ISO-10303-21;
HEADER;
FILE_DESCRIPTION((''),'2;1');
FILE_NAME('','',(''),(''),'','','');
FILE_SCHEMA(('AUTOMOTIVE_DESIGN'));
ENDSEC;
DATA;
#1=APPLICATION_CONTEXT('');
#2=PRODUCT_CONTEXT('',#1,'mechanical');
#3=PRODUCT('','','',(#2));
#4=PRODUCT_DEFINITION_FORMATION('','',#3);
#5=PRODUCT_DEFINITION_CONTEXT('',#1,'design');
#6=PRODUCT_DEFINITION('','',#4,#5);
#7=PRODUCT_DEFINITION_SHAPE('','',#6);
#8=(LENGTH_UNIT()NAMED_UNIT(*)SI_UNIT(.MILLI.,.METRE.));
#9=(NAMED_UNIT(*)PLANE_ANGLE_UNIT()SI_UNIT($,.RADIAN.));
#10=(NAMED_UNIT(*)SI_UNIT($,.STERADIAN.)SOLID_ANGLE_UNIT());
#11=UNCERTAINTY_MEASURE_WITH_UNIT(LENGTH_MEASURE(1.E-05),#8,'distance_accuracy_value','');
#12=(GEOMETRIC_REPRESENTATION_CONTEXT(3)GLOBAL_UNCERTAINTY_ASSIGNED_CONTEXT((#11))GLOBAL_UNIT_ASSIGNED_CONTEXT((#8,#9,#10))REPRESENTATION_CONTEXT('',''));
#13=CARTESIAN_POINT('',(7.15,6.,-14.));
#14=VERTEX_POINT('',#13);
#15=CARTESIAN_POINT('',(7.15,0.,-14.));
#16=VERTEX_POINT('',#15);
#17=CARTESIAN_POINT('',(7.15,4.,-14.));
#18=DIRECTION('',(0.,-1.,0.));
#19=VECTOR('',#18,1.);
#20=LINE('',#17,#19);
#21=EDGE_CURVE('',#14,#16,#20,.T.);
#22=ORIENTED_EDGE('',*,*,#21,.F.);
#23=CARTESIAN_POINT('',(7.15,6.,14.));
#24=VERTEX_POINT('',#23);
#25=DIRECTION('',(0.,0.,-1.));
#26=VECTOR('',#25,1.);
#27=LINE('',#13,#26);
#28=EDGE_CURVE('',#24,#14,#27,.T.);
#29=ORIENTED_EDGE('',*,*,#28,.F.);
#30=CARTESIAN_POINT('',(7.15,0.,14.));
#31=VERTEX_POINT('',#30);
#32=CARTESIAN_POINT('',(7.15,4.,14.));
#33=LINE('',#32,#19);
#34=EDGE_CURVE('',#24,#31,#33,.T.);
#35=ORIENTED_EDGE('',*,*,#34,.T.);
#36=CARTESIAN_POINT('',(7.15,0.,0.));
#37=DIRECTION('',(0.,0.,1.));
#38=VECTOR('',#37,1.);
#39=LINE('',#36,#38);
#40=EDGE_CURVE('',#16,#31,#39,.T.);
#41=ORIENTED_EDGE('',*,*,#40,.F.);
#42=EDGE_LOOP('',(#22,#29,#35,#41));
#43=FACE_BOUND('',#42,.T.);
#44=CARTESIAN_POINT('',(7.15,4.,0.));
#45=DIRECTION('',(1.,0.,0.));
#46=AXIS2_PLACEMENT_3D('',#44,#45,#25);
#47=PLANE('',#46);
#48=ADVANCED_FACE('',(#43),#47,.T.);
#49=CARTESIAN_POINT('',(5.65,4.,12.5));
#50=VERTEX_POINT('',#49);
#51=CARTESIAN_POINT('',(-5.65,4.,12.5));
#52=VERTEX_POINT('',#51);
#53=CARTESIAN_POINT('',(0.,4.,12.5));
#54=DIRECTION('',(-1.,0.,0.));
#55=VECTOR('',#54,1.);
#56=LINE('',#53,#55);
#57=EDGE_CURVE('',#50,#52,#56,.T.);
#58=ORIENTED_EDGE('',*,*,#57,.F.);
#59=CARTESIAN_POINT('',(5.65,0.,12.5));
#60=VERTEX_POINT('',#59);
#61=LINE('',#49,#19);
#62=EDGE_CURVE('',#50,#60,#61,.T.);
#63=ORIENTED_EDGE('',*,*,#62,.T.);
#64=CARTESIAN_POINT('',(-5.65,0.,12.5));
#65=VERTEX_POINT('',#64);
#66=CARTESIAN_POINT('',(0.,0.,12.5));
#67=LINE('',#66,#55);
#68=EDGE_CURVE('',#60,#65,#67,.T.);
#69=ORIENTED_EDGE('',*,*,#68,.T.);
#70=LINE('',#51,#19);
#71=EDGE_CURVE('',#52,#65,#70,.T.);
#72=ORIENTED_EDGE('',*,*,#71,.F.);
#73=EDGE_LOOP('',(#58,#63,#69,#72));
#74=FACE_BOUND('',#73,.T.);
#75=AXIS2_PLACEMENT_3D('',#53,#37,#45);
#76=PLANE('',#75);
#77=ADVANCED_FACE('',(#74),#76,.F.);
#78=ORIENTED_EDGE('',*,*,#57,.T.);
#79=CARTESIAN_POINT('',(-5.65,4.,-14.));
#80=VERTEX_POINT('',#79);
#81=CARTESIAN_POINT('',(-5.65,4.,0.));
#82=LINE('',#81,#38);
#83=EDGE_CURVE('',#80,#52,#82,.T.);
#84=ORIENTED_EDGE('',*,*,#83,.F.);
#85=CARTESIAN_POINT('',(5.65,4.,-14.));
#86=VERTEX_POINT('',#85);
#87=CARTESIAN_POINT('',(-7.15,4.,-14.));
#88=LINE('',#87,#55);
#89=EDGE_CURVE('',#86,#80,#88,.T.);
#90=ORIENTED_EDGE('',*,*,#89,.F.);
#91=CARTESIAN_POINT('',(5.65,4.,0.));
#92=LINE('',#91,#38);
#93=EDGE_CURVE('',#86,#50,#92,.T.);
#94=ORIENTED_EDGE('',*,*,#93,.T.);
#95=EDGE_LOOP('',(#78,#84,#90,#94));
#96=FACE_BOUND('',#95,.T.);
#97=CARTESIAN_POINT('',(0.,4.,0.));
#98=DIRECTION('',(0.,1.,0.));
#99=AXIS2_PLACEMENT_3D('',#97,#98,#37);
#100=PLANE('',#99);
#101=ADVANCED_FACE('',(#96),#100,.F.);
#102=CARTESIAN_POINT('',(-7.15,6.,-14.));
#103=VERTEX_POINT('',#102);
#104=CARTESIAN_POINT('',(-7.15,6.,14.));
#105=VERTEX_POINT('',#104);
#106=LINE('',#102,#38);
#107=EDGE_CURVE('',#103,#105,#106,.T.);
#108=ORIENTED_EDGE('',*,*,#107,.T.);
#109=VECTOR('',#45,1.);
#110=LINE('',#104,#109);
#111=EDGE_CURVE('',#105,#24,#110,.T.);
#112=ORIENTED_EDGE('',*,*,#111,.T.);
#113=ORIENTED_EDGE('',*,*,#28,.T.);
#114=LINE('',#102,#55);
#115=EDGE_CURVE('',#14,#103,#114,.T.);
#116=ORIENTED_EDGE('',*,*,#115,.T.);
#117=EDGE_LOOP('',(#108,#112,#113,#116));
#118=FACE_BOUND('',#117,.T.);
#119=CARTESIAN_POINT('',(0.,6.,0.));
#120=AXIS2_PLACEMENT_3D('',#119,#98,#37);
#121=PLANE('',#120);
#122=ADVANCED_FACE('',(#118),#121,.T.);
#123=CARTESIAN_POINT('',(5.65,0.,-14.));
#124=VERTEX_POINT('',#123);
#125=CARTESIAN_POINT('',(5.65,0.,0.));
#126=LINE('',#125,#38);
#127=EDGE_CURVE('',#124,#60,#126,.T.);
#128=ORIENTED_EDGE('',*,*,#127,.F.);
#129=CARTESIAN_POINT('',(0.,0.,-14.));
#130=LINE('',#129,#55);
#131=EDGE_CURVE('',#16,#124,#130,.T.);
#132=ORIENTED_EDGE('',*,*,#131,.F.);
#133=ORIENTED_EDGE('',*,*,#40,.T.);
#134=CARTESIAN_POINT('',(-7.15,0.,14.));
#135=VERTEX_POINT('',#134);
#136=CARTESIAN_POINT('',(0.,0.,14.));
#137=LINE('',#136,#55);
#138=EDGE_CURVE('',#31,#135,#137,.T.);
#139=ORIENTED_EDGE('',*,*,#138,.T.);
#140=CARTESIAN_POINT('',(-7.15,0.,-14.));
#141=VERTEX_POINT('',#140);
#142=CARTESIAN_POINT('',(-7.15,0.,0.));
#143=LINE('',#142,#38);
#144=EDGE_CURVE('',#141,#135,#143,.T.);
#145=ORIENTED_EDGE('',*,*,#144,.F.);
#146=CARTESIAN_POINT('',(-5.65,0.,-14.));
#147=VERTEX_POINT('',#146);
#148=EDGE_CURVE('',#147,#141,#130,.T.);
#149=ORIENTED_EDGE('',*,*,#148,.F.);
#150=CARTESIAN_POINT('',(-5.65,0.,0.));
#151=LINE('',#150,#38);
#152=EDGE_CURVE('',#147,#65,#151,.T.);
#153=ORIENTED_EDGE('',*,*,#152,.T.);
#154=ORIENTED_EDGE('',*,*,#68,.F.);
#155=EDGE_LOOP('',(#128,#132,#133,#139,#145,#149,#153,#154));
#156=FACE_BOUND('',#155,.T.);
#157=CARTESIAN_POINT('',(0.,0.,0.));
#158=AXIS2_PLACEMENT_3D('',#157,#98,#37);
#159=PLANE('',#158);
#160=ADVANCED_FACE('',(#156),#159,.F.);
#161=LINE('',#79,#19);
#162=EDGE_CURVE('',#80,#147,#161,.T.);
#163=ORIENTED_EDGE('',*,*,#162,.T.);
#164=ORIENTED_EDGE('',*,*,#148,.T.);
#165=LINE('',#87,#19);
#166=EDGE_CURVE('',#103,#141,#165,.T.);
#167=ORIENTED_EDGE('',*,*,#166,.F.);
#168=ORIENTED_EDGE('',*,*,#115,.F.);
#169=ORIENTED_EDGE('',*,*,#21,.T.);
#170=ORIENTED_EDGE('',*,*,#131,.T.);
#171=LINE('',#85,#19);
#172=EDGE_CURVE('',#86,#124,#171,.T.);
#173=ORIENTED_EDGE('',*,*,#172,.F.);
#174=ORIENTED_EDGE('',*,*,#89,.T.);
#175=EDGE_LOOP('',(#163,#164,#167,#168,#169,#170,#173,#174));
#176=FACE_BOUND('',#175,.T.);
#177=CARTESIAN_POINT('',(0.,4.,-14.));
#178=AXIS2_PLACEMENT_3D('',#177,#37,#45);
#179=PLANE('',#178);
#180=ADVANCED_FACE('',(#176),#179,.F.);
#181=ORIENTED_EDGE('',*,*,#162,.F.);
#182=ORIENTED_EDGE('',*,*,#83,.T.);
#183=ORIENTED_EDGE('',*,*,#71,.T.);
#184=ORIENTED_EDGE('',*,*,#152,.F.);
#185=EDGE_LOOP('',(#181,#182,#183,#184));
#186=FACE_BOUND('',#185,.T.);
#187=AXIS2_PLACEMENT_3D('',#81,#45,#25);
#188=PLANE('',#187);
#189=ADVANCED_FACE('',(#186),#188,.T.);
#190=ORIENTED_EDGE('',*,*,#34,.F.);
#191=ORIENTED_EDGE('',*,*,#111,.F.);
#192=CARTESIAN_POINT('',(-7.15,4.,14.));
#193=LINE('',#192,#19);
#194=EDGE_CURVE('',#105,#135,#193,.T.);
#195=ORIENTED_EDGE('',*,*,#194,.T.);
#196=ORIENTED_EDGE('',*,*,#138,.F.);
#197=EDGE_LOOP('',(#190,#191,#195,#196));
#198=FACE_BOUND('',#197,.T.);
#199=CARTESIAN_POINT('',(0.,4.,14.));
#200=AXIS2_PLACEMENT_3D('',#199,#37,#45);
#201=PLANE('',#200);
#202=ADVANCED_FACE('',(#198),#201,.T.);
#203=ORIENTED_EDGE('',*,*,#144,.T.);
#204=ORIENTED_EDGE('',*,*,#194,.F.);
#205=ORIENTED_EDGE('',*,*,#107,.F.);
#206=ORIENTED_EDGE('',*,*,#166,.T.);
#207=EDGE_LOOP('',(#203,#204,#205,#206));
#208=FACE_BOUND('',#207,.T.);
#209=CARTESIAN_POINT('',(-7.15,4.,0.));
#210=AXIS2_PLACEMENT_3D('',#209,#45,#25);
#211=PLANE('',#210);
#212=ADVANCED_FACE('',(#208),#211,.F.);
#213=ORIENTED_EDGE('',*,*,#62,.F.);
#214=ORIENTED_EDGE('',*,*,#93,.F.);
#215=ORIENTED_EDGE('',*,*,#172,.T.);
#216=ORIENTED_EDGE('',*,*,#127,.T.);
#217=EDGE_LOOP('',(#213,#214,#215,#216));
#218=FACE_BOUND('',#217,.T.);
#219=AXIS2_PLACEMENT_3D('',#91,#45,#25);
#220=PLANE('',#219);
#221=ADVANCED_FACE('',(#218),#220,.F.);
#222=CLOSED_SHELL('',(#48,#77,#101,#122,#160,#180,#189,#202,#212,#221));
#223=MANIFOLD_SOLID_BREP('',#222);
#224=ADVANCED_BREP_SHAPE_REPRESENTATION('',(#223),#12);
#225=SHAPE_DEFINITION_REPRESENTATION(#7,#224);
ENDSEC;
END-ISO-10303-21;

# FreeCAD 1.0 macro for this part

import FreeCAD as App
import Part
import Sketcher
from FreeCAD import Vector

doc = App.newDocument("Part")
body = doc.addObject("PartDesign::Body", "Body")

sketch1 = body.newObject("Sketcher::SketchObject", "Sketch")
sketch1.AttachmentSupport = (doc.getObject("XZ_Plane"), [""])
sketch1.MapMode = "FlatFace"
sketch1.addGeometry([
    Part.LineSegment(Vector(-5.65, 12.5, 0), Vector(-5.65, -14, 0)),
    Part.LineSegment(Vector(-5.65, -14, 0), Vector(-7.15, -14, 0)),
    Part.LineSegment(Vector(-7.15, -14, 0), Vector(-7.15, 14, 0)),
    Part.LineSegment(Vector(-7.15, 14, 0), Vector(7.15, 14, 0)),
    Part.LineSegment(Vector(7.15, 14, 0), Vector(7.15, -14, 0)),
    Part.LineSegment(Vector(7.15, -14, 0), Vector(5.65, -14, 0)),
    Part.LineSegment(Vector(5.65, -14, 0), Vector(5.65, 12.5, 0)),
    Part.LineSegment(Vector(5.65, 12.5, 0), Vector(-5.65, 12.5, 0)),
], False)
sketch1.addConstraint([
    Sketcher.Constraint("Coincident", 0, 2, 1, 1),
    Sketcher.Constraint("Coincident", 1, 2, 2, 1),
    Sketcher.Constraint("Coincident", 2, 2, 3, 1),
    Sketcher.Constraint("Coincident", 3, 2, 4, 1),
    Sketcher.Constraint("Coincident", 4, 2, 5, 1),
    Sketcher.Constraint("Coincident", 5, 2, 6, 1),
    Sketcher.Constraint("Coincident", 6, 2, 7, 1),
    Sketcher.Constraint("Coincident", 7, 2, 0, 1),
    Sketcher.Constraint("Vertical", 0),
    Sketcher.Constraint("Horizontal", 1),
    Sketcher.Constraint("Vertical", 2),
    Sketcher.Constraint("Horizontal", 3),
    Sketcher.Constraint("Vertical", 4),
    Sketcher.Constraint("Horizontal", 5),
    Sketcher.Constraint("Vertical", 6),
    Sketcher.Constraint("Horizontal", 7),
    Sketcher.Constraint("Symmetric", 1, 2, 3, 2, -1, 1),
    Sketcher.Constraint("Symmetric", 0, 2, 5, 2, -2),
    Sketcher.Constraint("DistanceY", 2, 1, 2, 2, 28.0),
    Sketcher.Constraint("DistanceX", 1, 2, 1, 1, 1.5),
    Sketcher.Constraint("DistanceX", 3, 1, 3, 2, 14.3),
    Sketcher.Constraint("DistanceY", 0, 2, 0, 1, 26.5),
])
pad1 = body.newObject("PartDesign::Pad", "Pad")
pad1.Profile = sketch1
pad1.Length = 4
pad1.Reversed = True

sketch2 = body.newObject("Sketcher::SketchObject", "Sketch001")
sketch2.AttachmentSupport = (doc.getObject("XZ_Plane"), [""])
sketch2.MapMode = "FlatFace"
sketch2.AttachmentOffset = App.Placement(Vector(0, 0, -4), App.Rotation())
sketch2.addGeometry([
    Part.LineSegment(Vector(-7.15, -14, 0), Vector(-7.15, 14, 0)),
    Part.LineSegment(Vector(-7.15, 14, 0), Vector(7.15, 14, 0)),
    Part.LineSegment(Vector(7.15, 14, 0), Vector(7.15, -14, 0)),
    Part.LineSegment(Vector(7.15, -14, 0), Vector(-7.15, -14, 0)),
], False)
sketch2.addConstraint([
    Sketcher.Constraint("Coincident", 0, 2, 1, 1),
    Sketcher.Constraint("Coincident", 1, 2, 2, 1),
    Sketcher.Constraint("Coincident", 2, 2, 3, 1),
    Sketcher.Constraint("Coincident", 3, 2, 0, 1),
    Sketcher.Constraint("Vertical", 0),
    Sketcher.Constraint("Horizontal", 1),
    Sketcher.Constraint("Vertical", 2),
    Sketcher.Constraint("Horizontal", 3),
    Sketcher.Constraint("Symmetric", 0, 2, 2, 2, -1, 1),
    Sketcher.Constraint("DistanceY", 0, 1, 0, 2, 28.0),
    Sketcher.Constraint("DistanceX", 1, 1, 1, 2, 14.3),
])
pad2 = body.newObject("PartDesign::Pad", "Pad001")
pad2.Profile = sketch2
pad2.Length = 2
pad2.Reversed = True

doc.recompute()
